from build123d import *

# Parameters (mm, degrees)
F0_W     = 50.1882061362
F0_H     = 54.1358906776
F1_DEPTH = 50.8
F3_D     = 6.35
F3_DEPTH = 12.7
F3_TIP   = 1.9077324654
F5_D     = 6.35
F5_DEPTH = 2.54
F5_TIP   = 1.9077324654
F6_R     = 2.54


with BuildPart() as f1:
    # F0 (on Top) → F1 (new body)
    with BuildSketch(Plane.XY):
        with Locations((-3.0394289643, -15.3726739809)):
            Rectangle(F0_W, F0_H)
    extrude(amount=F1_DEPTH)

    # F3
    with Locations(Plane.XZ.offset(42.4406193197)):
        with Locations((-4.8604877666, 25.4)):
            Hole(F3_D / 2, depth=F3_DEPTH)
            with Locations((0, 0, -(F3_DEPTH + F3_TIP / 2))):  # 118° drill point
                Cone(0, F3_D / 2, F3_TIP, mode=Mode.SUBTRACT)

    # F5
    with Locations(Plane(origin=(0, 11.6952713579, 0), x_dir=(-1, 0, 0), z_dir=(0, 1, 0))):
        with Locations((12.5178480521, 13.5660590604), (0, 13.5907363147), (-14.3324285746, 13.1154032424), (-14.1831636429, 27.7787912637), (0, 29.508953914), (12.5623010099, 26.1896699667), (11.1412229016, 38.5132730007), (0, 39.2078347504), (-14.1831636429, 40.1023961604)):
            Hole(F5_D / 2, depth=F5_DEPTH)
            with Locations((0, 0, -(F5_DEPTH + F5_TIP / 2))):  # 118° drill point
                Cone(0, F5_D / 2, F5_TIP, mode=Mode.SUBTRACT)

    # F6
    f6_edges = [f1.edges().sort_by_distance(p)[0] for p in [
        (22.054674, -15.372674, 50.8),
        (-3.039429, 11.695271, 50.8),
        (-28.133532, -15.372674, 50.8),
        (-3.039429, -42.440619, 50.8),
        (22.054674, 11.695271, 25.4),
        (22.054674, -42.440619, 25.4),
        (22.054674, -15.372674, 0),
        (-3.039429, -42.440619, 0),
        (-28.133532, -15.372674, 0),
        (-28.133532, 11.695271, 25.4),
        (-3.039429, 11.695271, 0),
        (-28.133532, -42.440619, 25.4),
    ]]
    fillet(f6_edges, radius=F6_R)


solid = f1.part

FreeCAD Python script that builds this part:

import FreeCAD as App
import Part
import Sketcher

V = App.Vector
Q = App.Units.Quantity


def edges_at(feature, points):
    """Names of the edges that pass closest to the given points."""
    edges = feature.Shape.Edges
    near = lambda p: min(range(len(edges)), key=lambda i: edges[i].distToShape(Part.Vertex(*p))[0])
    return sorted({f"Edge{near(p) + 1}" for p in points})


def add_polygon(sketch, points):
    """Adds a closed chain of lines whose ends are joined by coincident constraints."""
    first, n = sketch.GeometryCount, len(points)
    for a, b in zip(points, points[1:] + points[:1]):
        sketch.addGeometry(Part.LineSegment(App.Vector(*a, 0), App.Vector(*b, 0)), False)
    for i in range(n):
        sketch.addConstraint(Sketcher.Constraint("Coincident", first + i, 2, first + (i + 1) % n, 1))

doc = App.newDocument("Part")
body = doc.addObject("PartDesign::Body", "Body")

# Sketch on XY plane
sketch1 = doc.addObject("Sketcher::SketchObject", "Sketch")
body.addObject(sketch1)
sketch1.AttachmentSupport = (doc.XY_Plane, [""])
sketch1.MapMode = "FlatFace"
add_polygon(sketch1, [(-28, 12), (-28, -42), (22, -42), (22, 12)])  # lines 0-3
sketch1.addConstraint([
    Sketcher.Constraint("Vertical", 0),
    Sketcher.Constraint("Horizontal", 1),
    Sketcher.Constraint("Vertical", 2),
    Sketcher.Constraint("Horizontal", 3),
    Sketcher.Constraint("DistanceY", 0, 2, 0, 1, 54.135891),
    Sketcher.Constraint("DistanceX", 1, 1, 1, 2, 50.188206),
    Sketcher.Constraint("DistanceY", 0, 2, -1, 1, 42.440619),
    Sketcher.Constraint("DistanceX", 0, 2, -1, 1, 28.133532),
])
pad1 = doc.addObject("PartDesign::Pad", "Pad")
body.addObject(pad1)
pad1.Profile = sketch1
pad1.Length = Q("2 in")

# Sketch on XZ plane
sketch2 = doc.addObject("Sketcher::SketchObject", "Sketch001")
body.addObject(sketch2)
sketch2.AttachmentSupport = (doc.XZ_Plane, [""])
sketch2.MapMode = "FlatFace"
sketch2.AttachmentOffset = App.Placement(V(0, 0, 42.440619), App.Rotation())
sketch2.addGeometry(Part.Circle(V(-4.9, 25.4, 0), V(0, 0, 1), 3.2), False)
sketch2.addConstraint([
    Sketcher.Constraint("Diameter", 0, Q("0.25 in")),
    Sketcher.Constraint("DistanceY", -1, 1, 0, 3, Q("1 in")),
    Sketcher.Constraint("DistanceX", 0, 3, -1, 1, 4.860488),
])
doc.recompute()
hole = doc.addObject("PartDesign::Hole", "Hole")
body.addObject(hole)
hole.Profile = sketch2
hole.ThreadType = "None"
hole.Diameter = Q("0.25 in")
hole.DepthType = "Dimension"
hole.Depth = Q("0.5 in")
hole.DrillPoint = "Angled"
hole.DrillPointAngle = 118

# Sketch on XZ plane
sketch3 = doc.addObject("Sketcher::SketchObject", "Sketch002")
body.addObject(sketch3)
sketch3.AttachmentSupport = (doc.XZ_Plane, [""])
sketch3.MapMode = "FlatFace"
sketch3.AttachmentOffset = App.Placement(V(0, 0, -11.695271), App.Rotation())
sketch3.addGeometry([
    Part.Circle(V(-12.5, 13.6, 0), V(0, 0, 1), 3.2),  # 0
    Part.Circle(V(0, 13.6, 0), V(0, 0, 1), 3.2),  # 1
    Part.Circle(V(14.3, 13.1, 0), V(0, 0, 1), 3.2),  # 2
    Part.Circle(V(14.2, 27.8, 0), V(0, 0, 1), 3.2),  # 3
    Part.Circle(V(0, 29.5, 0), V(0, 0, 1), 3.2),  # 4
    Part.Circle(V(-12.6, 26.2, 0), V(0, 0, 1), 3.2),  # 5
    Part.Circle(V(-11.1, 38.5, 0), V(0, 0, 1), 3.2),  # 6
    Part.Circle(V(0, 39.2, 0), V(0, 0, 1), 3.2),  # 7
    Part.Circle(V(14.2, 40.1, 0), V(0, 0, 1), 3.2),  # 8
], False)
sketch3.addConstraint([
    Sketcher.Constraint("Equal", 0, 1),
    Sketcher.Constraint("Equal", 1, 2),
    Sketcher.Constraint("Equal", 2, 3),
    Sketcher.Constraint("Equal", 3, 4),
    Sketcher.Constraint("Equal", 4, 5),
    Sketcher.Constraint("Equal", 5, 6),
    Sketcher.Constraint("Equal", 6, 7),
    Sketcher.Constraint("Equal", 7, 8),
    Sketcher.Constraint("PointOnObject", 1, 3, -2),
    Sketcher.Constraint("PointOnObject", 4, 3, -2),
    Sketcher.Constraint("PointOnObject", 7, 3, -2),
    Sketcher.Constraint("Vertical", 3, 3, 8, 3),
    Sketcher.Constraint("Diameter", 0, Q("0.25 in")),
    Sketcher.Constraint("DistanceX", 5, 3, -1, 1, 12.562301),
    Sketcher.Constraint("DistanceY", 1, 3, 7, 3, 25.617098),
    Sketcher.Constraint("DistanceX", 0, 3, -1, 1, 12.517848),
    Sketcher.Constraint("DistanceY", -1, 1, 0, 3, 13.566059),
    Sketcher.Constraint("DistanceX", -1, 1, 2, 3, 14.332429),
    Sketcher.Constraint("DistanceY", -1, 1, 3, 3, 27.778791),
    Sketcher.Constraint("DistanceY", -1, 1, 5, 3, 26.18967),
    Sketcher.Constraint("DistanceY", 2, 3, 3, 3, 14.663388),
    Sketcher.Constraint("DistanceX", 0, 3, 3, 3, 26.701012),
    Sketcher.Constraint("DistanceY", 2, 3, 4, 3, 16.393551),
    Sketcher.Constraint("DistanceX", 5, 3, 6, 3, 1.421078),
    Sketcher.Constraint("DistanceY", 4, 3, 6, 3, 9.004319),
    Sketcher.Constraint("DistanceY", 4, 3, 7, 3, 9.698881),
    Sketcher.Constraint("DistanceY", 7, 3, 8, 3, 0.894561),
])
doc.recompute()
hole2 = doc.addObject("PartDesign::Hole", "Hole001")
body.addObject(hole2)
hole2.Profile = sketch3
hole2.ThreadType = "None"
hole2.Diameter = Q("0.25 in")
hole2.DepthType = "Dimension"
hole2.Depth = Q("0.1 in")
hole2.DrillPoint = "Angled"
hole2.DrillPointAngle = 118
hole2.Reversed = True
doc.recompute()

fillet = doc.addObject("PartDesign::Fillet", "Fillet")
body.addObject(fillet)
fillet.Base = (hole2, edges_at(hole2, [
    (22.055, -15.373, 50.8),
    (-3.039, 11.695, 50.8),
    (-28.134, -15.373, 50.8),
    (-3.039, -42.441, 50.8),
    (22.055, 11.695, 25.4),
    (22.055, -42.441, 25.4),
    (22.055, -15.373, 0),
    (-3.039, -42.441, 0),
    (-28.134, -15.373, 0),
    (-28.134, 11.695, 25.4),
    (-3.039, 11.695, 0),
    (-28.134, -42.441, 25.4),
]))
fillet.Radius = Q("0.1 in")

doc.recompute()
